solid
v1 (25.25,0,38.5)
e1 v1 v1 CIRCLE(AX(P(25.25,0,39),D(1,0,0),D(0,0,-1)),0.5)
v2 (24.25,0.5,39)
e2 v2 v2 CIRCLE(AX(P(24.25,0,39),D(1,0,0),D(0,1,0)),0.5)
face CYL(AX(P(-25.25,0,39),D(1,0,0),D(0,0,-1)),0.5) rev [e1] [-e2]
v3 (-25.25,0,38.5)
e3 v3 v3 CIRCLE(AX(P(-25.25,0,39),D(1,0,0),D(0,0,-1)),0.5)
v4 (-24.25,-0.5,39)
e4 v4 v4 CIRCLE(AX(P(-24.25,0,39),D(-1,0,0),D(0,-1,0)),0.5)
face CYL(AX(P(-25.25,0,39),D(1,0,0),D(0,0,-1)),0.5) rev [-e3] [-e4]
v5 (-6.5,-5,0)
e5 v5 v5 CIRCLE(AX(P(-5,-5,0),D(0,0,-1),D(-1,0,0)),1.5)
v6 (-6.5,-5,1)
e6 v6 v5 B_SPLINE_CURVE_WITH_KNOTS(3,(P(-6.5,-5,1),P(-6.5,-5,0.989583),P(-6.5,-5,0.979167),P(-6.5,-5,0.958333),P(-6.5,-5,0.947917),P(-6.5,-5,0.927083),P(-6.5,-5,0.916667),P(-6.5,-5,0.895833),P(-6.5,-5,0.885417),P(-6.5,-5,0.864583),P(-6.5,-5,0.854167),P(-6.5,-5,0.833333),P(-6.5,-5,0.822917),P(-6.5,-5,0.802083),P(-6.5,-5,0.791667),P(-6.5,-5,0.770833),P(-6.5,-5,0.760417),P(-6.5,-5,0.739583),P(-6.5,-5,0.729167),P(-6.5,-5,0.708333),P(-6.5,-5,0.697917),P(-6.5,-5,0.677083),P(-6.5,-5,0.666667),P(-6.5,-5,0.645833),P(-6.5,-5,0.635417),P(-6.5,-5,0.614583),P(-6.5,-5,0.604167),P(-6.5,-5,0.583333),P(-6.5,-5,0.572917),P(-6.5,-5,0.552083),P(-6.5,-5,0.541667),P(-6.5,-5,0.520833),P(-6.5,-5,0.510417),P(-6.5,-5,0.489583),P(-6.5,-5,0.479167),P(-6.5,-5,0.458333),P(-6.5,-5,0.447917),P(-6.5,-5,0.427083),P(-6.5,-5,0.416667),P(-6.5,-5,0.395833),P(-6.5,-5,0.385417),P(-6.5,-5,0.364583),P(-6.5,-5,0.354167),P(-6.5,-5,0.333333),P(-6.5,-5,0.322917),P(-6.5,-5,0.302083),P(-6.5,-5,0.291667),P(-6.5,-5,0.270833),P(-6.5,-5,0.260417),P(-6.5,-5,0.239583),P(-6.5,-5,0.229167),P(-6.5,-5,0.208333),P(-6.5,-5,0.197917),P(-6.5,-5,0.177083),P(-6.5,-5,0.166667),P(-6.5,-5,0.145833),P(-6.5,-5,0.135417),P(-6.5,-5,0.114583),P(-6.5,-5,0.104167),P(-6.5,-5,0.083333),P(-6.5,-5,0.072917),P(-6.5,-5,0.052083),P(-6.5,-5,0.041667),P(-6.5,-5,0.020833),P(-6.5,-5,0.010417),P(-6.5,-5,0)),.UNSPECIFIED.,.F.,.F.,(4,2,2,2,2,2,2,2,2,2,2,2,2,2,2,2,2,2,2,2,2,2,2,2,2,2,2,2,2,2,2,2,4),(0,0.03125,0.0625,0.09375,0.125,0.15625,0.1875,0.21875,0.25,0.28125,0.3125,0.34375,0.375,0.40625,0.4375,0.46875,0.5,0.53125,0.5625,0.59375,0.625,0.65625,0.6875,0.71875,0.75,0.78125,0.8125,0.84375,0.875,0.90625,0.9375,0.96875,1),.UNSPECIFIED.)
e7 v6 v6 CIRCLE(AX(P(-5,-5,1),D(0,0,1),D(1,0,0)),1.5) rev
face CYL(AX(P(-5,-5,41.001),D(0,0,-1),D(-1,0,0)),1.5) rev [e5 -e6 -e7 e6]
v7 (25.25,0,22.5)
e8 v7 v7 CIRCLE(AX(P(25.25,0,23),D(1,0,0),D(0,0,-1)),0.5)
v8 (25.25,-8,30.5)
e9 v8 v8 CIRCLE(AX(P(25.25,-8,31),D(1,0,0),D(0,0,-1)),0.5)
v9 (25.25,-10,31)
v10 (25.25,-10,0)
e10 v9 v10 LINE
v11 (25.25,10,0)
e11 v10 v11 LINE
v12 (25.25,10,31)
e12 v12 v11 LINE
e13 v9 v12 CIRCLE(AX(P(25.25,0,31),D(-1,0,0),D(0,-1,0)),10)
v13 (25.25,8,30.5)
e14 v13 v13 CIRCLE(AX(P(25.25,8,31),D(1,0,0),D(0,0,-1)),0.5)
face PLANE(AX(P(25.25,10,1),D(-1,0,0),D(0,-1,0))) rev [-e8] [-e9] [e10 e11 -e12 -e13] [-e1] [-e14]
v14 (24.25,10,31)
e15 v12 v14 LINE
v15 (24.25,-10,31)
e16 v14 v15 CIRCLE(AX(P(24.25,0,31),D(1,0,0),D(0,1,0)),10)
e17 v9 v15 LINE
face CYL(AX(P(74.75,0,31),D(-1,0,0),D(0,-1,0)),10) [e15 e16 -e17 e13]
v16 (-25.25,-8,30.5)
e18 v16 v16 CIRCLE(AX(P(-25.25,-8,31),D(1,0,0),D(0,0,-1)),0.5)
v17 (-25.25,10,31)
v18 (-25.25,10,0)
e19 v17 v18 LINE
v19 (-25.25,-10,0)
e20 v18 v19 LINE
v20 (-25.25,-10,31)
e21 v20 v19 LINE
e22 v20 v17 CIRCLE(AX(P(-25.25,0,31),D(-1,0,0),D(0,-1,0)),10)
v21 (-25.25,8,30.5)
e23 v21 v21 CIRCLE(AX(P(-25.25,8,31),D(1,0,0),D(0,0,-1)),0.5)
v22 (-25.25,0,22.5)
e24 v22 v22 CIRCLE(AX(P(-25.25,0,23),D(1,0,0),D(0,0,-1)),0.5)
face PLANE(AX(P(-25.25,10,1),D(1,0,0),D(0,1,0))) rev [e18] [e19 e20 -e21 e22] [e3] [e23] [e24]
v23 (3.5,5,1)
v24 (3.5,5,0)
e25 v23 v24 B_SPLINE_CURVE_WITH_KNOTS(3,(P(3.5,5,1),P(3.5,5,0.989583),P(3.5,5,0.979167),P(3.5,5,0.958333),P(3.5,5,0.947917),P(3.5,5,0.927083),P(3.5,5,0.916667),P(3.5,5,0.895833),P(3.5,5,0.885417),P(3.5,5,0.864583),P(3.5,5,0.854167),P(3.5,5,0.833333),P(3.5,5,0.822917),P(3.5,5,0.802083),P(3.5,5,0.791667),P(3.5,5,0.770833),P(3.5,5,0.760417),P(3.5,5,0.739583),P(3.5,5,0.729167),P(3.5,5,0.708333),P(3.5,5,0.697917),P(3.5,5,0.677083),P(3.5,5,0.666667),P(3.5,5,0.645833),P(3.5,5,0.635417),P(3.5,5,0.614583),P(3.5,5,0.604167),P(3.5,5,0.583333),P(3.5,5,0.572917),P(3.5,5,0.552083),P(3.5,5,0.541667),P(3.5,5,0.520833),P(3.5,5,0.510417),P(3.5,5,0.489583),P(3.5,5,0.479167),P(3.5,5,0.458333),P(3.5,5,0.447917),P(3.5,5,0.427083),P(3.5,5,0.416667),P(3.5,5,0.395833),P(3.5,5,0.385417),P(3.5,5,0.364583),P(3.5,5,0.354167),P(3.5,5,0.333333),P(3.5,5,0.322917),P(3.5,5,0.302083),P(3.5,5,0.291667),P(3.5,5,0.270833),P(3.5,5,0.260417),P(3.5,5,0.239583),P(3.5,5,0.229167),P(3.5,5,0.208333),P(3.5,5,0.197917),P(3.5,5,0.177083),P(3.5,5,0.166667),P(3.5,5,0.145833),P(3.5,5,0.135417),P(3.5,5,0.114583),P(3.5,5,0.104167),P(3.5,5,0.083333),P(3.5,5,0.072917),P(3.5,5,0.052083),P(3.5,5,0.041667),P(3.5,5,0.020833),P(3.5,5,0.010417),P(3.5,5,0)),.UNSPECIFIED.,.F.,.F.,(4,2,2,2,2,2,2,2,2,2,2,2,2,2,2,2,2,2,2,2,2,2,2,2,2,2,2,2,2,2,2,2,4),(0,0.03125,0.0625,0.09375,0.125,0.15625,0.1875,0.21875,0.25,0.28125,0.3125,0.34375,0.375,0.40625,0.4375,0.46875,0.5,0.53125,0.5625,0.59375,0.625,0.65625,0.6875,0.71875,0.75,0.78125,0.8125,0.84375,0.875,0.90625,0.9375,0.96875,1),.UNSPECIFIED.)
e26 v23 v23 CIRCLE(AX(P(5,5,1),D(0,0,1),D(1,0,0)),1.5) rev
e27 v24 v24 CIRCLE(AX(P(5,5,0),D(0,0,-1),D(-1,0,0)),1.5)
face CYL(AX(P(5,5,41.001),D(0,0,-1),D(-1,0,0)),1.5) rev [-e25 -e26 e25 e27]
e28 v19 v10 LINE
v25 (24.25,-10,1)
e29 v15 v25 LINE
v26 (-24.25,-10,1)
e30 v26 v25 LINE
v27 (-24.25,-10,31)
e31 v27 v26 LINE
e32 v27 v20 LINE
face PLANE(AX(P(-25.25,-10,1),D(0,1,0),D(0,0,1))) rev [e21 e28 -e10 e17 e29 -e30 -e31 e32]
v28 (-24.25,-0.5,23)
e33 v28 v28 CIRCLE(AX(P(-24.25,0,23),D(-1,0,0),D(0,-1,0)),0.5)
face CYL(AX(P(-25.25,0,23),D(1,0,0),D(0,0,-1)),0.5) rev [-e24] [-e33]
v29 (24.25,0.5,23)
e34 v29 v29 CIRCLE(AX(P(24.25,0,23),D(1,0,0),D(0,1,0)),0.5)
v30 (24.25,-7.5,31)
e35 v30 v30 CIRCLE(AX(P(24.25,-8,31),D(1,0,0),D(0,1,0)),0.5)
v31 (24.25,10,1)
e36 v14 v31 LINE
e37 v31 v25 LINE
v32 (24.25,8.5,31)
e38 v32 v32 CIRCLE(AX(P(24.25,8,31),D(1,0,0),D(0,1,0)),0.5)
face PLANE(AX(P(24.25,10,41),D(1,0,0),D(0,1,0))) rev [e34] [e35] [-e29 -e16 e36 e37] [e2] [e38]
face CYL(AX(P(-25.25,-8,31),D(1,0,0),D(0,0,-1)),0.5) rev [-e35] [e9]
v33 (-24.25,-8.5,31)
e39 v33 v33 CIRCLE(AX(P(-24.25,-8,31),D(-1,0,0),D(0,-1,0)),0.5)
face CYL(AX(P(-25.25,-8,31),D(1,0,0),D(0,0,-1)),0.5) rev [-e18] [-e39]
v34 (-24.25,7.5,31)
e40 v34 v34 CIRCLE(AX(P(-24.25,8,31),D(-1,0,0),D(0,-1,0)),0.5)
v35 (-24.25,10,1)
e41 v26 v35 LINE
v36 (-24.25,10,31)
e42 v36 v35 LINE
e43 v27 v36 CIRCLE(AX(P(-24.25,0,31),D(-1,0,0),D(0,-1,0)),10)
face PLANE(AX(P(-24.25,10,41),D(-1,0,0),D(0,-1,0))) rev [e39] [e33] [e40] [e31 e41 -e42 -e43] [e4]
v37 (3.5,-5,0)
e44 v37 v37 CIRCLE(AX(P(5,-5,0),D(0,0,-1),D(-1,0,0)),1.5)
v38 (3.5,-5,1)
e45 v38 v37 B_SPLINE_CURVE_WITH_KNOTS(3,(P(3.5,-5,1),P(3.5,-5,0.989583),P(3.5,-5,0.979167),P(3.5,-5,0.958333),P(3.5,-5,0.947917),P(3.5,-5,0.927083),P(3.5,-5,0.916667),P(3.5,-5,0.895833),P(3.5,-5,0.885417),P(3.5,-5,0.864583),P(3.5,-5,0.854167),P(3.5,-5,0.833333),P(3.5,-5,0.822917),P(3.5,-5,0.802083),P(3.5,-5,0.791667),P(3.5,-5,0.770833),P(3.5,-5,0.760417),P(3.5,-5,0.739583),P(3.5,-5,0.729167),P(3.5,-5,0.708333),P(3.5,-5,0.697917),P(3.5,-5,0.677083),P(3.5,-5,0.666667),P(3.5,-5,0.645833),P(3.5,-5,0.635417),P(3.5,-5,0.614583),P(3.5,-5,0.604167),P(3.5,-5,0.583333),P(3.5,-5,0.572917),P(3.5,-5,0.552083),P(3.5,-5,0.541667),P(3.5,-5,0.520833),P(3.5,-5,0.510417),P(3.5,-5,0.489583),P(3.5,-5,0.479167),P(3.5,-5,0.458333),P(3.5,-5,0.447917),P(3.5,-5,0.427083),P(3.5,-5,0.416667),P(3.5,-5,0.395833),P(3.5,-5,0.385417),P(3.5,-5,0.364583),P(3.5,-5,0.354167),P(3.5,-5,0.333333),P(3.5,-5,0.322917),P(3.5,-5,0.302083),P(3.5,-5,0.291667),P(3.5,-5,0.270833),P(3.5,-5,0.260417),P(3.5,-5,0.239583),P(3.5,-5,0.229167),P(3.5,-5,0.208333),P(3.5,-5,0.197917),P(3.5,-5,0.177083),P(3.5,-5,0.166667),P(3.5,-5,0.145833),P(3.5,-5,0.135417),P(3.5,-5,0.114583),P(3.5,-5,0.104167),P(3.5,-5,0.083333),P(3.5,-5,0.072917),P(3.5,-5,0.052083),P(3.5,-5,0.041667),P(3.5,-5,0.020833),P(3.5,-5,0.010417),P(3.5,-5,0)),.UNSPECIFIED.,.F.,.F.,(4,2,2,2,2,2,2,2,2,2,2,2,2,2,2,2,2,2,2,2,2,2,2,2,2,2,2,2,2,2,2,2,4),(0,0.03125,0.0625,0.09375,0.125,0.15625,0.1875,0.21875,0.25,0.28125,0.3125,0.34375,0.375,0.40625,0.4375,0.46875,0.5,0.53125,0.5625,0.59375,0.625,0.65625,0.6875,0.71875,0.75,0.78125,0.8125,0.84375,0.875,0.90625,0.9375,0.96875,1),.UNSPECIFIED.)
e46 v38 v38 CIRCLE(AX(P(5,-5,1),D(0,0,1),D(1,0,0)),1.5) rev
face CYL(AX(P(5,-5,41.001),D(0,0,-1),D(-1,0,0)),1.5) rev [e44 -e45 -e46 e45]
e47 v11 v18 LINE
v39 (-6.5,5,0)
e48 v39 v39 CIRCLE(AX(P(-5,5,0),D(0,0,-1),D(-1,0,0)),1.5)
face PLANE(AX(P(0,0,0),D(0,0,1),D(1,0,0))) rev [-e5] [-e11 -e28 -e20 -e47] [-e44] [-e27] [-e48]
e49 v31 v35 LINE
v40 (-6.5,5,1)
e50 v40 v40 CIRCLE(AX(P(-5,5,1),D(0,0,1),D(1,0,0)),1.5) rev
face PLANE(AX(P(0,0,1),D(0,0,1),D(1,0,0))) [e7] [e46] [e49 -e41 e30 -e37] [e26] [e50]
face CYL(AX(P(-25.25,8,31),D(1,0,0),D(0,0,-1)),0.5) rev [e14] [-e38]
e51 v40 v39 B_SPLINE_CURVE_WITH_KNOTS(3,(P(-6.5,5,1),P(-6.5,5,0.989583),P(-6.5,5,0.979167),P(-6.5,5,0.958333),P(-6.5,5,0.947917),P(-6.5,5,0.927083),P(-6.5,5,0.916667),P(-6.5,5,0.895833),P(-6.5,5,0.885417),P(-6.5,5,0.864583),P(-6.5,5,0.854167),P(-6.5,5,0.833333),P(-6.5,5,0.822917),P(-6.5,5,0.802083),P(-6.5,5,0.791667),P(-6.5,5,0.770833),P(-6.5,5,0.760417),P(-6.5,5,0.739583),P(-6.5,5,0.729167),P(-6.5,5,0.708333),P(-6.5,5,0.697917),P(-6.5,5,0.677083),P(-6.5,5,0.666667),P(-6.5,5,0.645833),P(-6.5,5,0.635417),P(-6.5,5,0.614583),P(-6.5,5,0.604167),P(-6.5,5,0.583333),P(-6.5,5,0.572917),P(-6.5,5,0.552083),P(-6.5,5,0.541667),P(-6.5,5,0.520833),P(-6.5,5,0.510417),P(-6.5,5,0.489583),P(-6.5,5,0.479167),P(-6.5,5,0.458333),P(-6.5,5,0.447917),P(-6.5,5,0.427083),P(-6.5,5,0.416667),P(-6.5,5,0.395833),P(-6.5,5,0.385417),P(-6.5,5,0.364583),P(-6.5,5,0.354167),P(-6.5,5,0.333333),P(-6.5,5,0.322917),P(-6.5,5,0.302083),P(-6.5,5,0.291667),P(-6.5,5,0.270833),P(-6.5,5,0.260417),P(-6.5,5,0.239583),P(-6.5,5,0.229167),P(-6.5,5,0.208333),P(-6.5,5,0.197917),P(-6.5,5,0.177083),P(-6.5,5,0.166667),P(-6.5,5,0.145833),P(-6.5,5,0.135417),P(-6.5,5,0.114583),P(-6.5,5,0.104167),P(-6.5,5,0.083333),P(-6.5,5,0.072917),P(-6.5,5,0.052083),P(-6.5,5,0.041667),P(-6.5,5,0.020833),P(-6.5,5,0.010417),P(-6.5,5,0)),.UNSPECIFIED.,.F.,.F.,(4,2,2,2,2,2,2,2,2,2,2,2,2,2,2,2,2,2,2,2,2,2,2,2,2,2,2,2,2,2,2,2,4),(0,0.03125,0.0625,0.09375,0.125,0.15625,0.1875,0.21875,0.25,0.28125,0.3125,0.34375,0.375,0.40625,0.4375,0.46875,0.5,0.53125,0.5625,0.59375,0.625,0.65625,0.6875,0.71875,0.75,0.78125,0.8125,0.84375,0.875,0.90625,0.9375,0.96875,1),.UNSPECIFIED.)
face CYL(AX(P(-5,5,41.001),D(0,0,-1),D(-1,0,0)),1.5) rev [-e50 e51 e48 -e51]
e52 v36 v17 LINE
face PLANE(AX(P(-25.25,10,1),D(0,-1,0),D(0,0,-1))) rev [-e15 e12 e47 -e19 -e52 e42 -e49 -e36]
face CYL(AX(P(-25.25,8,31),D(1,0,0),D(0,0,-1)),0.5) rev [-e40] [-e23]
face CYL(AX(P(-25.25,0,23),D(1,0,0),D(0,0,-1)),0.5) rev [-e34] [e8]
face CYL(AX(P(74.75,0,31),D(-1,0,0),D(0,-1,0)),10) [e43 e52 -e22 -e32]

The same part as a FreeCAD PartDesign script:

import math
import FreeCAD as App
import Part
import Sketcher
Q = App.Units.Quantity


def add_polygon(sketch, points):
    """Adds a closed chain of lines whose ends are joined by coincident constraints."""
    first, n = sketch.GeometryCount, len(points)
    for a, b in zip(points, points[1:] + points[:1]):
        sketch.addGeometry(Part.LineSegment(App.Vector(*a, 0), App.Vector(*b, 0)), False)
    for i in range(n):
        sketch.addConstraint(Sketcher.Constraint("Coincident", first + i, 2, first + (i + 1) % n, 1))

doc = App.newDocument("Part")
params = doc.addObject("Spreadsheet::Sheet", "Params")
for row, (alias, value) in enumerate([
    ("sketch1_height", "20 mm"),
    ("sketch1_width", "50.5 mm"),
    ("pad1_length", "1 mm"),
    ("sketch2_width", "1 mm"),
    ("sketch2_height", "20 mm"),
    ("pad2_length", "40 mm"),
    ("sketch3_radius", "10 mm"),
    ("pocket1_length", "100 mm"),
    ("sketch4_diameter", "1 mm"),
    ("sketch5_diameter", "3 mm"),
    ("sketch6_diameter", "3 mm"),
    ("sketch7_diameter", "3 mm"),
    ("sketch8_diameter", "3 mm"),
], start=1):
    params.set(f"A{row}", alias)
    params.set(f"B{row}", "=" + value)
    params.setAlias(f"B{row}", alias)

body = doc.addObject("PartDesign::Body", "Body")

sketch1 = body.newObject("Sketcher::SketchObject", "Sketch")
sketch1.AttachmentSupport = (doc.getObject("XY_Plane"), [""])
sketch1.MapMode = "FlatFace"
add_polygon(sketch1, [(-25, 10), (-25, -10), (25, -10), (25, 10)])
sketch1.addConstraint(Sketcher.Constraint("Vertical", 0))
sketch1.addConstraint(Sketcher.Constraint("Horizontal", 1))
sketch1.addConstraint(Sketcher.Constraint("Vertical", 2))
sketch1.addConstraint(Sketcher.Constraint("Horizontal", 3))
sketch1.addConstraint(Sketcher.Constraint("Symmetric", 0, 2, 2, 2, -1, 1))
sketch1.addConstraint(Sketcher.Constraint("DistanceY", 0, 2, 0, 1, Q("20 mm")))
sketch1.addConstraint(Sketcher.Constraint("DistanceX", 1, 1, 1, 2, Q("50.5 mm")))
sketch1.setExpression("Constraints[9]", "Params.sketch1_height")
sketch1.setExpression("Constraints[10]", "Params.sketch1_width")
pad1 = body.newObject("PartDesign::Pad", "Pad")
pad1.Profile = sketch1
pad1.setExpression("Length", "Params.pad1_length")

sketch2 = body.newObject("Sketcher::SketchObject", "Sketch001")
sketch2.AttachmentSupport = (doc.getObject("XY_Plane"), [""])
sketch2.MapMode = "FlatFace"
sketch2.AttachmentOffset = App.Placement(App.Vector(0, 0, 1), App.Rotation())
add_polygon(sketch2, [(-25.2, 10), (-25.2, -10), (-24.2, -10), (-24.2, 10)])
add_polygon(sketch2, [(24.2, 10), (24.2, -10), (25.2, -10), (25.2, 10)])
sketch2.addConstraint(Sketcher.Constraint("Vertical", 0))
sketch2.addConstraint(Sketcher.Constraint("Horizontal", 1))
sketch2.addConstraint(Sketcher.Constraint("Vertical", 2))
sketch2.addConstraint(Sketcher.Constraint("Horizontal", 3))
sketch2.addConstraint(Sketcher.Constraint("Vertical", 4))
sketch2.addConstraint(Sketcher.Constraint("Horizontal", 5))
sketch2.addConstraint(Sketcher.Constraint("Vertical", 6))
sketch2.addConstraint(Sketcher.Constraint("Horizontal", 7))
sketch2.addConstraint(Sketcher.Constraint("Symmetric", 2, 2, 4, 2, -1, 1))
sketch2.addConstraint(Sketcher.Constraint("Symmetric", 0, 2, 6, 2, -1, 1))
sketch2.addConstraint(Sketcher.Constraint("Horizontal", 1, 2, 4, 2))
sketch2.addConstraint(Sketcher.Constraint("DistanceX", 1, 1, 1, 2, Q("1 mm")))
sketch2.addConstraint(Sketcher.Constraint("DistanceY", 0, 2, 0, 1, Q("20 mm")))
sketch2.addConstraint(Sketcher.Constraint("DistanceX", 1, 2, 4, 2, Q("48.5 mm")))
sketch2.setExpression("Constraints[19]", "Params.sketch2_width")
sketch2.setExpression("Constraints[20]", "Params.sketch2_height")
pad2 = body.newObject("PartDesign::Pad", "Pad001")
pad2.Profile = sketch2
pad2.setExpression("Length", "Params.pad2_length")

sketch3 = body.newObject("Sketcher::SketchObject", "Sketch002")
sketch3.AttachmentSupport = (doc.getObject("YZ_Plane"), [""])
sketch3.MapMode = "FlatFace"
sketch3.AttachmentOffset = App.Placement(App.Vector(0, 0, -25.25), App.Rotation())
sketch3.addGeometry(Part.LineSegment(App.Vector(-10, 31, 0), App.Vector(-10, 41, 0)), False)
sketch3.addGeometry(Part.LineSegment(App.Vector(-10, 41, 0), App.Vector(0, 41, 0)), False)
sketch3.addGeometry(Part.ArcOfCircle(Part.Circle(App.Vector(0, 31, 0), App.Vector(0, 0, 1), 10), math.radians(90), math.radians(180)), False)
sketch3.addGeometry(Part.ArcOfCircle(Part.Circle(App.Vector(0, 31, 0), App.Vector(0, 0, 1), 10), math.radians(0), math.radians(90)), False)
sketch3.addGeometry(Part.LineSegment(App.Vector(0, 41, 0), App.Vector(10, 41, 0)), False)
sketch3.addGeometry(Part.LineSegment(App.Vector(10, 41, 0), App.Vector(10, 31, 0)), False)
sketch3.addConstraint(Sketcher.Constraint("Coincident", 0, 2, 1, 1))
sketch3.addConstraint(Sketcher.Constraint("Tangent", 1, 2, 2, 1))
sketch3.addConstraint(Sketcher.Constraint("Tangent", 2, 2, 0, 1))
sketch3.addConstraint(Sketcher.Constraint("Tangent", 3, 2, 4, 1))
sketch3.addConstraint(Sketcher.Constraint("Coincident", 4, 2, 5, 1))
sketch3.addConstraint(Sketcher.Constraint("Tangent", 5, 2, 3, 1))
sketch3.addConstraint(Sketcher.Constraint("Vertical", 0))
sketch3.addConstraint(Sketcher.Constraint("Horizontal", 1))
sketch3.addConstraint(Sketcher.Constraint("Horizontal", 4))
sketch3.addConstraint(Sketcher.Constraint("Vertical", 5))
sketch3.addConstraint(Sketcher.Constraint("Coincident", 3, 3, 2, 3))
sketch3.addConstraint(Sketcher.Constraint("Equal", 2, 3))
sketch3.addConstraint(Sketcher.Constraint("PointOnObject", 2, 3, -2))
sketch3.addConstraint(Sketcher.Constraint("Radius", 2, Q("10 mm")))
sketch3.addConstraint(Sketcher.Constraint("DistanceY", -1, 1, 2, 3, Q("31 mm")))
sketch3.setExpression("Constraints[13]", "Params.sketch3_radius")
pocket1 = body.newObject("PartDesign::Pocket", "Pocket")
pocket1.Profile = sketch3
pocket1.setExpression("Length", "Params.pocket1_length")
pocket1.Reversed = True

sketch4 = body.newObject("Sketcher::SketchObject", "Sketch003")
sketch4.AttachmentSupport = (doc.getObject("YZ_Plane"), [""])
sketch4.MapMode = "FlatFace"
sketch4.AttachmentOffset = App.Placement(App.Vector(0, 0, 25.25), App.Rotation())
sketch4.addGeometry(Part.Circle(App.Vector(0, 39, 0), App.Vector(0, 0, 1), 0.5), False)
sketch4.addGeometry(Part.Circle(App.Vector(8, 31, 0), App.Vector(0, 0, 1), 0.5), False)
sketch4.addGeometry(Part.Circle(App.Vector(0, 23, 0), App.Vector(0, 0, 1), 0.5), False)
sketch4.addGeometry(Part.Circle(App.Vector(-8, 31, 0), App.Vector(0, 0, 1), 0.5), False)
sketch4.addConstraint(Sketcher.Constraint("Equal", 0, 1))
sketch4.addConstraint(Sketcher.Constraint("Equal", 1, 2))
sketch4.addConstraint(Sketcher.Constraint("Equal", 2, 3))
sketch4.addConstraint(Sketcher.Constraint("Symmetric", 1, 3, 3, 3, -2))
sketch4.addConstraint(Sketcher.Constraint("PointOnObject", 0, 3, -2))
sketch4.addConstraint(Sketcher.Constraint("PointOnObject", 2, 3, -2))
sketch4.addConstraint(Sketcher.Constraint("Diameter", 0, Q("1 mm")))
sketch4.addConstraint(Sketcher.Constraint("DistanceY", -1, 1, 0, 3, Q("39 mm")))
sketch4.addConstraint(Sketcher.Constraint("DistanceX", -1, 1, 1, 3, Q("8 mm")))
sketch4.addConstraint(Sketcher.Constraint("DistanceY", -1, 1, 1, 3, Q("31 mm")))
sketch4.addConstraint(Sketcher.Constraint("DistanceY", -1, 1, 2, 3, Q("23 mm")))
sketch4.setExpression("Constraints[6]", "Params.sketch4_diameter")
pocket2 = body.newObject("PartDesign::Pocket", "Pocket001")
pocket2.Profile = sketch4
pocket2.Type = "ThroughAll"

sketch5 = body.newObject("Sketcher::SketchObject", "Sketch004")
sketch5.AttachmentSupport = (doc.getObject("XY_Plane"), [""])
sketch5.MapMode = "FlatFace"
sketch5.addGeometry(Part.Circle(App.Vector(5, 5, 0), App.Vector(0, 0, 1), 1.5), False)
sketch5.addConstraint(Sketcher.Constraint("Diameter", 0, Q("3 mm")))
sketch5.addConstraint(Sketcher.Constraint("DistanceX", -1, 1, 0, 3, Q("5 mm")))
sketch5.addConstraint(Sketcher.Constraint("DistanceY", -1, 1, 0, 3, Q("5 mm")))
sketch5.setExpression("Constraints[0]", "Params.sketch5_diameter")
pocket3 = body.newObject("PartDesign::Pocket", "Pocket002")
pocket3.Profile = sketch5
pocket3.Type = "UpToFirst"
pocket3.Reversed = True

sketch6 = body.newObject("Sketcher::SketchObject", "Sketch005")
sketch6.AttachmentSupport = (doc.getObject("XY_Plane"), [""])
sketch6.MapMode = "FlatFace"
sketch6.addGeometry(Part.Circle(App.Vector(5, -5, 0), App.Vector(0, 0, 1), 1.5), False)
sketch6.addConstraint(Sketcher.Constraint("Diameter", 0, Q("3 mm")))
sketch6.addConstraint(Sketcher.Constraint("DistanceX", -1, 1, 0, 3, Q("5 mm")))
sketch6.addConstraint(Sketcher.Constraint("DistanceY", 0, 3, -1, 1, Q("5 mm")))
sketch6.setExpression("Constraints[0]", "Params.sketch6_diameter")
pocket4 = body.newObject("PartDesign::Pocket", "Pocket003")
pocket4.Profile = sketch6
pocket4.Type = "UpToFirst"
pocket4.Reversed = True

sketch7 = body.newObject("Sketcher::SketchObject", "Sketch006")
sketch7.AttachmentSupport = (doc.getObject("XY_Plane"), [""])
sketch7.MapMode = "FlatFace"
sketch7.addGeometry(Part.Circle(App.Vector(-5, 5, 0), App.Vector(0, 0, 1), 1.5), False)
sketch7.addConstraint(Sketcher.Constraint("Diameter", 0, Q("3 mm")))
sketch7.addConstraint(Sketcher.Constraint("DistanceX", 0, 3, -1, 1, Q("5 mm")))
sketch7.addConstraint(Sketcher.Constraint("DistanceY", -1, 1, 0, 3, Q("5 mm")))
sketch7.setExpression("Constraints[0]", "Params.sketch7_diameter")
pocket5 = body.newObject("PartDesign::Pocket", "Pocket004")
pocket5.Profile = sketch7
pocket5.Type = "UpToFirst"
pocket5.Reversed = True

sketch8 = body.newObject("Sketcher::SketchObject", "Sketch007")
sketch8.AttachmentSupport = (doc.getObject("XY_Plane"), [""])
sketch8.MapMode = "FlatFace"
sketch8.addGeometry(Part.Circle(App.Vector(-5, -5, 0), App.Vector(0, 0, 1), 1.5), False)
sketch8.addConstraint(Sketcher.Constraint("Diameter", 0, Q("3 mm")))
sketch8.addConstraint(Sketcher.Constraint("DistanceX", 0, 3, -1, 1, Q("5 mm")))
sketch8.addConstraint(Sketcher.Constraint("DistanceY", 0, 3, -1, 1, Q("5 mm")))
sketch8.setExpression("Constraints[0]", "Params.sketch8_diameter")
pocket6 = body.newObject("PartDesign::Pocket", "Pocket005")
pocket6.Profile = sketch8
pocket6.Type = "UpToFirst"
pocket6.Reversed = True

doc.recompute()
